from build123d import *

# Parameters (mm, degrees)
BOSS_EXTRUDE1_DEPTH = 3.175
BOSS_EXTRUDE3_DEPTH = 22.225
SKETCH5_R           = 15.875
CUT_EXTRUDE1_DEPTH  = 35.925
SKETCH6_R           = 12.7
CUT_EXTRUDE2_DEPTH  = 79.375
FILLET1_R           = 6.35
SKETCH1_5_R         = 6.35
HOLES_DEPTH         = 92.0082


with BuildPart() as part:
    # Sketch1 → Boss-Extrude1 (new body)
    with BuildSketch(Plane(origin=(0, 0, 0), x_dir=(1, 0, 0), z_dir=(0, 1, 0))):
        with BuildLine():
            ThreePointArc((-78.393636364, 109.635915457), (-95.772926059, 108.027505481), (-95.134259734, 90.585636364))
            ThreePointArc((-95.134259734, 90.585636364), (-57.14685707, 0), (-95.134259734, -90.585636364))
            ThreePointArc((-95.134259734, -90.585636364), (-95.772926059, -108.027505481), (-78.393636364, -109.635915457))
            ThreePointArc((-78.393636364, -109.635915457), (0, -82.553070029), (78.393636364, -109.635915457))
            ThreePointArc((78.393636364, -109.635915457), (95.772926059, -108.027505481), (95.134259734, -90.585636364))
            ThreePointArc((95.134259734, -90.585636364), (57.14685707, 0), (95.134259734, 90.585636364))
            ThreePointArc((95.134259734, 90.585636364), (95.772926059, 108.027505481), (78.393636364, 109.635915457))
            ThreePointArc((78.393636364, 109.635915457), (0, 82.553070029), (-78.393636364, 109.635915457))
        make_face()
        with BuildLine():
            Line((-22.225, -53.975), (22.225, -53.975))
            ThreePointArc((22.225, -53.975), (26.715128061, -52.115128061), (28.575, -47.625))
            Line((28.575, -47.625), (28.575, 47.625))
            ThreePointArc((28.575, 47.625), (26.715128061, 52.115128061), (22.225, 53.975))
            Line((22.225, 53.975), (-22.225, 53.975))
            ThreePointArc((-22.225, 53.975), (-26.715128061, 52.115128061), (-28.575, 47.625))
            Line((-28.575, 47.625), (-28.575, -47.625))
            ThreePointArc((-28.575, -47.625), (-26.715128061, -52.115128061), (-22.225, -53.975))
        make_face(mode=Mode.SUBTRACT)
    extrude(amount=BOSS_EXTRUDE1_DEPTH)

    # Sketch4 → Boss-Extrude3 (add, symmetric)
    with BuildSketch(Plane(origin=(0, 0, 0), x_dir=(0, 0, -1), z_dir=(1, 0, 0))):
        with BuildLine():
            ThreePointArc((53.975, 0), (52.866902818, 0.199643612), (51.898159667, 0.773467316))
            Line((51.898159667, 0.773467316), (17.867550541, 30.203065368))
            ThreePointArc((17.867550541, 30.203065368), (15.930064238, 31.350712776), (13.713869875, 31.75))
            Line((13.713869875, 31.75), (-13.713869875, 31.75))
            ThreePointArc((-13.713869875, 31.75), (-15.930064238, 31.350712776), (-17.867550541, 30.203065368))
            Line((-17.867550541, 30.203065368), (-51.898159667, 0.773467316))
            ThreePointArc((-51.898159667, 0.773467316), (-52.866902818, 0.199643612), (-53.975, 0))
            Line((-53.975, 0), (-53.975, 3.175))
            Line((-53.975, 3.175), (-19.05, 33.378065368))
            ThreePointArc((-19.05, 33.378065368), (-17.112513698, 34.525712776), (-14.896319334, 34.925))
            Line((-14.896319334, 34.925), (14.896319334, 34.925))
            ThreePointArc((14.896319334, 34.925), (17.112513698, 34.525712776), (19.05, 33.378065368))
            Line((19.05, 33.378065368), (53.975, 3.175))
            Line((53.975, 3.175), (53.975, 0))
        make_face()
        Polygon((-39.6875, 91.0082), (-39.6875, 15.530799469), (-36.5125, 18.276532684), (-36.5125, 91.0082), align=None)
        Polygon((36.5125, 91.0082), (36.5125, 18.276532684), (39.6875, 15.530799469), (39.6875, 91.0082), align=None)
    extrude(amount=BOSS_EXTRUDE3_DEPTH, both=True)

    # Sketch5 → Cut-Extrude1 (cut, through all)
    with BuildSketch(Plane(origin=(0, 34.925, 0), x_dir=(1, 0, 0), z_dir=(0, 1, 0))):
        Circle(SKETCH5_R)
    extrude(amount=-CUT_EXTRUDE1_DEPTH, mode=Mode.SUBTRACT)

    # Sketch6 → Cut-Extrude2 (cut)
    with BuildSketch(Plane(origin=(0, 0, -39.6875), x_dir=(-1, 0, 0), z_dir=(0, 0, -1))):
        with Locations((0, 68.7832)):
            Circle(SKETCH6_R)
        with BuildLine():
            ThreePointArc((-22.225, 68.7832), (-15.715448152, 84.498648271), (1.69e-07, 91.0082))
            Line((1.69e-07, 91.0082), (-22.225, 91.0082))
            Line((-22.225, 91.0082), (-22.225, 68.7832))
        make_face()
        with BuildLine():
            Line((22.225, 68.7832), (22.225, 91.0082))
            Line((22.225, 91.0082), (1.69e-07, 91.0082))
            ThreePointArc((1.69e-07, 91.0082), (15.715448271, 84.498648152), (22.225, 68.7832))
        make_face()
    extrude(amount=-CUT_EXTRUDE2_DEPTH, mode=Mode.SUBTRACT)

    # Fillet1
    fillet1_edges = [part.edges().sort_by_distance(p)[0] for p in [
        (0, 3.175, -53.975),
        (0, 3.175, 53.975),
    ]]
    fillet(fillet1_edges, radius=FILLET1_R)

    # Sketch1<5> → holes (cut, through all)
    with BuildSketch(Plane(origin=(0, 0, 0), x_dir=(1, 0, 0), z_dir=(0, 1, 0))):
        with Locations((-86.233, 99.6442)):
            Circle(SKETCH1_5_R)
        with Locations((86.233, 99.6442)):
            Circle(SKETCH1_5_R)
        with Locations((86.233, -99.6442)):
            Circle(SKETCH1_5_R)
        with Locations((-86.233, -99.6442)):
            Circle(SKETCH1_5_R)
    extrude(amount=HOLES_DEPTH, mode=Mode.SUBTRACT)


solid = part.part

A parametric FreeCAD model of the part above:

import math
import FreeCAD as App
import Part
import Sketcher
Q = App.Units.Quantity


def edges_at(feature, points):
    """Names of the edges that pass closest to the given points."""
    edges = feature.Shape.Edges
    near = lambda p: min(range(len(edges)), key=lambda i: edges[i].distToShape(Part.Vertex(*p))[0])
    return sorted({f"Edge{near(p) + 1}" for p in points})

doc = App.newDocument("Part")
body = doc.addObject("PartDesign::Body", "Body")

sketch1 = body.newObject("Sketcher::SketchObject", "Sketch")
sketch1.AttachmentSupport = (doc.getObject("XZ_Plane"), [""])
sketch1.MapMode = "FlatFace"
sketch1.addGeometry([
    Part.ArcOfCircle(Part.Circle(App.Vector(-86.233, -99.6442, 0), App.Vector(0, 0, 1), 12.7), math.radians(134.498179), math.radians(308.117247)),
    Part.ArcOfCircle(Part.Circle(App.Vector(-184.146857, 0, 0), App.Vector(0, 0, 1), 127), math.radians(-45.501821), math.radians(45.501821)),
    Part.ArcOfCircle(Part.Circle(App.Vector(-86.233, 99.6442, 0), App.Vector(0, 0, 1), 12.7), math.radians(51.882753), math.radians(225.501821)),
    Part.ArcOfCircle(Part.Circle(App.Vector(0, 209.55307, 0), App.Vector(0, 0, 1), 127), math.radians(-128.117247), math.radians(-51.882753)),
    Part.ArcOfCircle(Part.Circle(App.Vector(86.233, 99.6442, 0), App.Vector(0, 0, 1), 12.7), math.radians(-45.501821), math.radians(128.117247)),
    Part.ArcOfCircle(Part.Circle(App.Vector(184.146857, 0, 0), App.Vector(0, 0, 1), 127), math.radians(134.498179), math.radians(225.501821)),
    Part.ArcOfCircle(Part.Circle(App.Vector(86.233, -99.6442, 0), App.Vector(0, 0, 1), 12.7), math.radians(-128.117247), math.radians(45.501821)),
    Part.ArcOfCircle(Part.Circle(App.Vector(0, -209.55307, 0), App.Vector(0, 0, 1), 127), math.radians(51.882753), math.radians(128.117247)),
    Part.LineSegment(App.Vector(22.225, 53.975, 0), App.Vector(-22.225, 53.975, 0)),
    Part.ArcOfCircle(Part.Circle(App.Vector(-22.225, 47.625, 0), App.Vector(0, 0, 1), 6.35), math.radians(90), math.radians(180)),
    Part.LineSegment(App.Vector(-28.575, 47.625, 0), App.Vector(-28.575, -47.625, 0)),
    Part.ArcOfCircle(Part.Circle(App.Vector(-22.225, -47.625, 0), App.Vector(0, 0, 1), 6.35), math.radians(180), math.radians(270)),
    Part.LineSegment(App.Vector(-22.225, -53.975, 0), App.Vector(22.225, -53.975, 0)),
    Part.ArcOfCircle(Part.Circle(App.Vector(22.225, -47.625, 0), App.Vector(0, 0, 1), 6.35), math.radians(-90), math.radians(0)),
    Part.LineSegment(App.Vector(28.575, -47.625, 0), App.Vector(28.575, 47.625, 0)),
    Part.ArcOfCircle(Part.Circle(App.Vector(22.225, 47.625, 0), App.Vector(0, 0, 1), 6.35), math.radians(0), math.radians(90)),
], False)
sketch1.addConstraint([
    Sketcher.Constraint("Tangent", 0, 1, 1, 1),
    Sketcher.Constraint("Tangent", 1, 2, 2, 2),
    Sketcher.Constraint("Tangent", 2, 1, 3, 1),
    Sketcher.Constraint("Tangent", 3, 2, 4, 2),
    Sketcher.Constraint("Tangent", 4, 1, 5, 1),
    Sketcher.Constraint("Tangent", 5, 2, 6, 2),
    Sketcher.Constraint("Tangent", 6, 1, 7, 1),
    Sketcher.Constraint("Tangent", 7, 2, 0, 2),
    Sketcher.Constraint("Tangent", 8, 2, 9, 1),
    Sketcher.Constraint("Tangent", 9, 2, 10, 1),
    Sketcher.Constraint("Tangent", 10, 2, 11, 1),
    Sketcher.Constraint("Tangent", 11, 2, 12, 1),
    Sketcher.Constraint("Tangent", 12, 2, 13, 1),
    Sketcher.Constraint("Tangent", 13, 2, 14, 1),
    Sketcher.Constraint("Tangent", 14, 2, 15, 1),
    Sketcher.Constraint("Tangent", 15, 2, 8, 1),
    Sketcher.Constraint("Horizontal", 8),
    Sketcher.Constraint("Vertical", 10),
    Sketcher.Constraint("Horizontal", 12),
    Sketcher.Constraint("Vertical", 14),
    Sketcher.Constraint("Equal", 0, 2),
    Sketcher.Constraint("Equal", 1, 3),
    Sketcher.Constraint("Equal", 2, 4),
    Sketcher.Constraint("Equal", 3, 5),
    Sketcher.Constraint("Equal", 4, 6),
    Sketcher.Constraint("Equal", 5, 7),
    Sketcher.Constraint("Equal", 9, 11),
    Sketcher.Constraint("Equal", 11, 13),
    Sketcher.Constraint("Equal", 13, 15),
    Sketcher.Constraint("Symmetric", 0, 3, 4, 3, -1, 1),
    Sketcher.Constraint("Symmetric", 2, 3, 6, 3, -1, 1),
    Sketcher.Constraint("Symmetric", 9, 3, 13, 3, -1, 1),
    Sketcher.Constraint("Symmetric", 2, 3, 4, 3, -2),
    Sketcher.Constraint("Radius", 1, Q("5 in")),
    Sketcher.Constraint("Radius", 0, Q("0.5 in")),
    Sketcher.Constraint("Radius", 9, Q("0.25 in")),
    Sketcher.Constraint("DistanceX", 9, 2, 15, 3, Q("2 in")),
    Sketcher.Constraint("DistanceY", 10, 2, 10, 1, Q("3.75 in")),
    Sketcher.Constraint("DistanceX", 2, 3, 4, 3, Q("6.79 in")),
    Sketcher.Constraint("DistanceY", 0, 3, -1, 1, Q("3.923 in")),
])
pad1 = body.newObject("PartDesign::Pad", "Pad")
pad1.Profile = sketch1
pad1.Length = Q("0.125 in")
pad1.Reversed = True

sketch2 = body.newObject("Sketcher::SketchObject", "Sketch001")
sketch2.AttachmentSupport = (doc.getObject("YZ_Plane"), [""])
sketch2.MapMode = "FlatFace"
sketch2.addGeometry([
    Part.ArcOfCircle(Part.Circle(App.Vector(3.175, -53.975, 0), App.Vector(0, 0, 1), 3.175), math.radians(139.14682), math.radians(180)),
    Part.LineSegment(App.Vector(0, -53.975, 0), App.Vector(3.175, -53.975, 0)),
    Part.LineSegment(App.Vector(3.175, -53.975, 0), App.Vector(15.530799, -39.6875, 0)),
    Part.LineSegment(App.Vector(15.530799, -39.6875, 0), App.Vector(91.0082, -39.6875, 0)),
    Part.LineSegment(App.Vector(91.0082, -39.6875, 0), App.Vector(91.0082, -36.5125, 0)),
    Part.LineSegment(App.Vector(91.0082, -36.5125, 0), App.Vector(18.276533, -36.5125, 0)),
    Part.LineSegment(App.Vector(18.276533, -36.5125, 0), App.Vector(33.378065, -19.05, 0)),
    Part.ArcOfCircle(Part.Circle(App.Vector(28.575, -14.896319, 0), App.Vector(0, 0, 1), 6.35), math.radians(-40.85318), math.radians(0)),
    Part.LineSegment(App.Vector(34.925, -14.896319, 0), App.Vector(34.925, 14.896319, 0)),
    Part.ArcOfCircle(Part.Circle(App.Vector(28.575, 14.896319, 0), App.Vector(0, 0, 1), 6.35), math.radians(0), math.radians(40.85318)),
    Part.LineSegment(App.Vector(33.378065, 19.05, 0), App.Vector(18.276533, 36.5125, 0)),
    Part.LineSegment(App.Vector(18.276533, 36.5125, 0), App.Vector(91.0082, 36.5125, 0)),
    Part.LineSegment(App.Vector(91.0082, 36.5125, 0), App.Vector(91.0082, 39.6875, 0)),
    Part.LineSegment(App.Vector(91.0082, 39.6875, 0), App.Vector(15.530799, 39.6875, 0)),
    Part.LineSegment(App.Vector(15.530799, 39.6875, 0), App.Vector(3.175, 53.975, 0)),
    Part.LineSegment(App.Vector(3.175, 53.975, 0), App.Vector(0, 53.975, 0)),
    Part.ArcOfCircle(Part.Circle(App.Vector(3.175, 53.975, 0), App.Vector(0, 0, 1), 3.175), math.radians(180), math.radians(220.85318)),
    Part.LineSegment(App.Vector(0.773467, 51.89816, 0), App.Vector(30.203065, 17.867551, 0)),
    Part.ArcOfCircle(Part.Circle(App.Vector(25.4, 13.71387, 0), App.Vector(0, 0, 1), 6.35), math.radians(0), math.radians(40.85318)),
    Part.LineSegment(App.Vector(31.75, 13.71387, 0), App.Vector(31.75, -13.71387, 0)),
    Part.ArcOfCircle(Part.Circle(App.Vector(25.4, -13.71387, 0), App.Vector(0, 0, 1), 6.35), math.radians(-40.85318), math.radians(0)),
    Part.LineSegment(App.Vector(30.203065, -17.867551, 0), App.Vector(0.773467, -51.89816, 0)),
], False)
sketch2.addConstraint([
    Sketcher.Constraint("Coincident", 0, 2, 1, 1),
    Sketcher.Constraint("Coincident", 1, 2, 2, 1),
    Sketcher.Constraint("Coincident", 2, 2, 3, 1),
    Sketcher.Constraint("Coincident", 3, 2, 4, 1),
    Sketcher.Constraint("Coincident", 4, 2, 5, 1),
    Sketcher.Constraint("Coincident", 5, 2, 6, 1),
    Sketcher.Constraint("Tangent", 6, 2, 7, 1),
    Sketcher.Constraint("Tangent", 7, 2, 8, 1),
    Sketcher.Constraint("Tangent", 8, 2, 9, 1),
    Sketcher.Constraint("Tangent", 9, 2, 10, 1),
    Sketcher.Constraint("Coincident", 10, 2, 11, 1),
    Sketcher.Constraint("Coincident", 11, 2, 12, 1),
    Sketcher.Constraint("Coincident", 12, 2, 13, 1),
    Sketcher.Constraint("Coincident", 13, 2, 14, 1),
    Sketcher.Constraint("Coincident", 14, 2, 15, 1),
    Sketcher.Constraint("Coincident", 15, 2, 16, 1),
    Sketcher.Constraint("Tangent", 16, 2, 17, 1),
    Sketcher.Constraint("Tangent", 17, 2, 18, 2),
    Sketcher.Constraint("Tangent", 18, 1, 19, 1),
    Sketcher.Constraint("Tangent", 19, 2, 20, 2),
    Sketcher.Constraint("Tangent", 20, 1, 21, 1),
    Sketcher.Constraint("Tangent", 21, 2, 0, 1),
    Sketcher.Constraint("Horizontal", 1),
    Sketcher.Constraint("Horizontal", 3),
    Sketcher.Constraint("Vertical", 4),
    Sketcher.Constraint("Horizontal", 5),
    Sketcher.Constraint("Vertical", 8),
    Sketcher.Constraint("Horizontal", 11),
    Sketcher.Constraint("Vertical", 12),
    Sketcher.Constraint("Horizontal", 13),
    Sketcher.Constraint("Horizontal", 15),
    Sketcher.Constraint("Vertical", 19),
    Sketcher.Constraint("Coincident", 1, 2, 0, 3),
    Sketcher.Constraint("Coincident", 14, 2, 16, 3),
    Sketcher.Constraint("Equal", 7, 9),
    Sketcher.Constraint("Equal", 0, 16),
    Sketcher.Constraint("Equal", 9, 18),
    Sketcher.Constraint("Equal", 18, 20),
    Sketcher.Constraint("Symmetric", 0, 2, 15, 2, -1, 1),
    Sketcher.Constraint("Symmetric", 6, 2, 9, 2, -1),
    Sketcher.Constraint("Symmetric", 4, 2, 11, 2, -1),
    Sketcher.Constraint("Symmetric", 2, 2, 13, 2, -1),
    Sketcher.Constraint("Symmetric", 17, 2, 20, 1, -1),
    Sketcher.Constraint("Parallel", 2, 6),
    Sketcher.Constraint("Parallel", 14, 17),
    Sketcher.Constraint("Equal", 15, 4),
    Sketcher.Constraint("Radius", 7, Q("0.25 in")),
    Sketcher.Constraint("DistanceX", -1, 1, 18, 3, Q("1 in")),
    Sketcher.Constraint("Radius", 0, Q("0.125 in")),
    Sketcher.Constraint("DistanceX", 0, 3, 7, 3, Q("1 in")),
    Sketcher.Constraint("DistanceY", 6, 2, -1, 1, Q("0.75 in")),
    Sketcher.Constraint("DistanceY", 0, 3, 16, 3, Q("4.25 in")),
    Sketcher.Constraint("DistanceY", 2, 2, -1, 1, Q("1.5625 in")),
    Sketcher.Constraint("DistanceX", -1, 1, 3, 2, Q("3.583 in")),
    Sketcher.Constraint("DistanceX", 3, 1, 3, 2, 75.477401),
])
pad2 = body.newObject("PartDesign::Pad", "Pad001")
pad2.Profile = sketch2
pad2.Length = Q("1.75 in")
pad2.Midplane = True

sketch3 = body.newObject("Sketcher::SketchObject", "Sketch002")
sketch3.AttachmentSupport = (doc.getObject("XZ_Plane"), [""])
sketch3.MapMode = "FlatFace"
sketch3.AttachmentOffset = App.Placement(App.Vector(0, 0, -1.375 * 25.4), App.Rotation())
sketch3.addGeometry(Part.Circle(App.Vector(0, 0, 0), App.Vector(0, 0, 1), 15.875), False)
sketch3.addConstraint([
    Sketcher.Constraint("Coincident", 0, 3, -1, 1),
    Sketcher.Constraint("Diameter", 0, Q("1.25 in")),
])
pocket1 = body.newObject("PartDesign::Pocket", "Pocket")
pocket1.Profile = sketch3
pocket1.Type = "ThroughAll"
pocket1.Reversed = True

sketch4 = body.newObject("Sketcher::SketchObject", "Sketch003")
sketch4.AttachmentSupport = (doc.getObject("XY_Plane"), [""])
sketch4.MapMode = "FlatFace"
sketch4.AttachmentOffset = App.Placement(App.Vector(0, 0, -1.5625 * 25.4), App.Rotation())
sketch4.addGeometry([
    Part.Circle(App.Vector(0, 68.7832, 0), App.Vector(0, 0, 1), 12.7),
    Part.ArcOfCircle(Part.Circle(App.Vector(0, 68.7832, 0), App.Vector(0, 0, 1), 22.225), math.radians(0), math.radians(90)),
    Part.LineSegment(App.Vector(0, 91.0082, 0), App.Vector(22.225, 91.0082, 0)),
    Part.LineSegment(App.Vector(22.225, 91.0082, 0), App.Vector(22.225, 68.7832, 0)),
    Part.LineSegment(App.Vector(-22.225, 68.7832, 0), App.Vector(-22.225, 91.0082, 0)),
    Part.LineSegment(App.Vector(-22.225, 91.0082, 0), App.Vector(0, 91.0082, 0)),
    Part.ArcOfCircle(Part.Circle(App.Vector(0, 68.7832, 0), App.Vector(0, 0, 1), 22.225), math.radians(90), math.radians(180)),
], False)
sketch4.addConstraint([
    Sketcher.Constraint("Tangent", 1, 2, 2, 1),
    Sketcher.Constraint("Coincident", 2, 2, 3, 1),
    Sketcher.Constraint("Tangent", 3, 2, 1, 1),
    Sketcher.Constraint("Coincident", 4, 2, 5, 1),
    Sketcher.Constraint("Tangent", 5, 2, 6, 1),
    Sketcher.Constraint("Tangent", 6, 2, 4, 1),
    Sketcher.Constraint("Horizontal", 2),
    Sketcher.Constraint("Vertical", 3),
    Sketcher.Constraint("Vertical", 4),
    Sketcher.Constraint("Horizontal", 5),
    Sketcher.Constraint("Coincident", 1, 3, 0, 3),
    Sketcher.Constraint("Coincident", 6, 3, 0, 3),
    Sketcher.Constraint("Equal", 1, 6),
    Sketcher.Constraint("PointOnObject", 0, 3, -2),
    Sketcher.Constraint("Diameter", 0, Q("1 in")),
    Sketcher.Constraint("Radius", 1, Q("0.875 in")),
    Sketcher.Constraint("DistanceY", -1, 1, 0, 3, Q("2.708 in")),
])
pocket2 = body.newObject("PartDesign::Pocket", "Pocket001")
pocket2.Profile = sketch4
pocket2.Length = Q("3.125 in")
pocket2.Reversed = True
doc.recompute()

fillet = body.newObject("PartDesign::Fillet", "Fillet")
fillet.Base = (pocket2, edges_at(pocket2, [(0, 3.175, -53.975), (0, 3.175, 53.975)]))
fillet.Radius = Q("0.25 in")

sketch5 = body.newObject("Sketcher::SketchObject", "Sketch004")
sketch5.AttachmentSupport = (doc.getObject("XZ_Plane"), [""])
sketch5.MapMode = "FlatFace"
sketch5.addGeometry([
    Part.Circle(App.Vector(-86.233, -99.6442, 0), App.Vector(0, 0, 1), 6.35),
    Part.Circle(App.Vector(86.233, -99.6442, 0), App.Vector(0, 0, 1), 6.35),
    Part.Circle(App.Vector(86.233, 99.6442, 0), App.Vector(0, 0, 1), 6.35),
    Part.Circle(App.Vector(-86.233, 99.6442, 0), App.Vector(0, 0, 1), 6.35),
], False)
sketch5.addConstraint([
    Sketcher.Constraint("Equal", 0, 1),
    Sketcher.Constraint("Equal", 1, 2),
    Sketcher.Constraint("Equal", 2, 3),
    Sketcher.Constraint("Symmetric", 0, 3, 2, 3, -1, 1),
    Sketcher.Constraint("Symmetric", 1, 3, 3, 3, -1, 1),
    Sketcher.Constraint("Symmetric", 0, 3, 1, 3, -2),
    Sketcher.Constraint("Diameter", 0, Q("0.5 in")),
    Sketcher.Constraint("DistanceX", 0, 3, 1, 3, Q("6.79 in")),
    Sketcher.Constraint("DistanceY", 0, 3, -1, 1, Q("3.923 in")),
])
pocket3 = body.newObject("PartDesign::Pocket", "Pocket002")
pocket3.Profile = sketch5
pocket3.Type = "ThroughAll"

doc.recompute()
